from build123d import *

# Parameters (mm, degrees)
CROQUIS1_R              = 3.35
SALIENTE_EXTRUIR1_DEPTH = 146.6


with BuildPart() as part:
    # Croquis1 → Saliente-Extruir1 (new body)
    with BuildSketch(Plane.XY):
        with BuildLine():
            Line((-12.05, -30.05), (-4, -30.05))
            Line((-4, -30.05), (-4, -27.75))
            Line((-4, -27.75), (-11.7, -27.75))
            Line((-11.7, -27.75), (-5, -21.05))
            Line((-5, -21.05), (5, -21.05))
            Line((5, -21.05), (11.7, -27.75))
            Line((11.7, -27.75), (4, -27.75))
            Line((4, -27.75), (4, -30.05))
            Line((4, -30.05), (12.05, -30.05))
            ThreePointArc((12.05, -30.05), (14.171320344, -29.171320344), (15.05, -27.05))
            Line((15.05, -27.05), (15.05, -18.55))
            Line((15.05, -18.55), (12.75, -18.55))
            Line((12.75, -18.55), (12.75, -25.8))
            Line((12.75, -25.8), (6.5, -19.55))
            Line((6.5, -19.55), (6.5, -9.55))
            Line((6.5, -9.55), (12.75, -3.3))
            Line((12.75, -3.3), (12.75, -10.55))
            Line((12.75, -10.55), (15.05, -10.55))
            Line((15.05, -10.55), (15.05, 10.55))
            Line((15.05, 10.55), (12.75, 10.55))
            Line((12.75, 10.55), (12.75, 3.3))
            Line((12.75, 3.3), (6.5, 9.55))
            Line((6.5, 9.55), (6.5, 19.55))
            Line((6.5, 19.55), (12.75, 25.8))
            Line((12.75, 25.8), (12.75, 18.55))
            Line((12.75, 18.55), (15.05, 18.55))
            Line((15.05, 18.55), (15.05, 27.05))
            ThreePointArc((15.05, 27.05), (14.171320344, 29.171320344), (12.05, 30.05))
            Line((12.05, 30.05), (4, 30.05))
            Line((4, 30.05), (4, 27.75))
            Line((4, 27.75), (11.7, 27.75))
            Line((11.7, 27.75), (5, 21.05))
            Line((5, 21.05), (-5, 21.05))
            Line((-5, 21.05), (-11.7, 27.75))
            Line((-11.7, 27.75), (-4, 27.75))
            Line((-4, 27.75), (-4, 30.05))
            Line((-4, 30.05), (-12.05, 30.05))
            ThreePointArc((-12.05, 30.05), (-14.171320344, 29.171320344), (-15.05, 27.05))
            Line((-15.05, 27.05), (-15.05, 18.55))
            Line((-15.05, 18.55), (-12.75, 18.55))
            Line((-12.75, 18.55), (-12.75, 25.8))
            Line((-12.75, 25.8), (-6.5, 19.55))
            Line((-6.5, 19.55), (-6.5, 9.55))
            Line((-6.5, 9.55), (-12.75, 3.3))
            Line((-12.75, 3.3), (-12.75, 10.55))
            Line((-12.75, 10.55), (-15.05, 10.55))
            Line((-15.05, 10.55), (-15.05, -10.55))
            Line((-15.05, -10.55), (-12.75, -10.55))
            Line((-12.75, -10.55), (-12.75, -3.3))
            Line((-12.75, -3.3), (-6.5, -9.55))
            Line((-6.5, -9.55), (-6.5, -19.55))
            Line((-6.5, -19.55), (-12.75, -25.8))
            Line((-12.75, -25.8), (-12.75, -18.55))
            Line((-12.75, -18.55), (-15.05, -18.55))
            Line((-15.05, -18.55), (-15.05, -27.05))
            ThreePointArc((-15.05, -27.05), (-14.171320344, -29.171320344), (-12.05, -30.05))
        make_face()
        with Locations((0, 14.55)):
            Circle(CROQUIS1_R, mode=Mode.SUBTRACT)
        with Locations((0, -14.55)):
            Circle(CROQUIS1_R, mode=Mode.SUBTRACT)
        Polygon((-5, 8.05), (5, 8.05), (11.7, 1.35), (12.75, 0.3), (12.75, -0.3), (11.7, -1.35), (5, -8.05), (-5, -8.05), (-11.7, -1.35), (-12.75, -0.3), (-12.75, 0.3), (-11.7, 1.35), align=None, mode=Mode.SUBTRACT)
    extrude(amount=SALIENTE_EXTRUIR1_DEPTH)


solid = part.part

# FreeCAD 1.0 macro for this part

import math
import FreeCAD as App
import Part
import Sketcher
from FreeCAD import Vector
Q = App.Units.Quantity


def add_polygon(sketch, points):
    """Adds a closed chain of lines whose ends are joined by coincident constraints."""
    first, n = sketch.GeometryCount, len(points)
    for a, b in zip(points, points[1:] + points[:1]):
        sketch.addGeometry(Part.LineSegment(App.Vector(*a, 0), App.Vector(*b, 0)), False)
    for i in range(n):
        sketch.addConstraint(Sketcher.Constraint("Coincident", first + i, 2, first + (i + 1) % n, 1))

doc = App.newDocument("Part")
body = doc.addObject("PartDesign::Body", "Body")

# Sketch on XY plane
sketch1 = body.newObject("Sketcher::SketchObject", "Sketch")
sketch1.AttachmentSupport = (doc.getObject("XY_Plane"), [""])
sketch1.MapMode = "FlatFace"
sketch1.addGeometry(Part.LineSegment(Vector(-12.1, -30.1, 0), Vector(-4, -30.1, 0)), False)  # 0
sketch1.addGeometry(Part.LineSegment(Vector(-4, -30.1, 0), Vector(-4, -27.8, 0)), False)  # 1
sketch1.addGeometry(Part.LineSegment(Vector(-4, -27.8, 0), Vector(-11.7, -27.8, 0)), False)  # 2
sketch1.addGeometry(Part.LineSegment(Vector(-11.7, -27.8, 0), Vector(-5, -21.1, 0)), False)  # 3
sketch1.addGeometry(Part.LineSegment(Vector(-5, -21.1, 0), Vector(5, -21.1, 0)), False)  # 4
sketch1.addGeometry(Part.LineSegment(Vector(5, -21.1, 0), Vector(11.7, -27.8, 0)), False)  # 5
sketch1.addGeometry(Part.LineSegment(Vector(11.7, -27.8, 0), Vector(4, -27.8, 0)), False)  # 6
sketch1.addGeometry(Part.LineSegment(Vector(4, -27.8, 0), Vector(4, -30.1, 0)), False)  # 7
sketch1.addGeometry(Part.LineSegment(Vector(4, -30.1, 0), Vector(12.1, -30.1, 0)), False)  # 8
sketch1.addGeometry(Part.ArcOfCircle(Part.Circle(Vector(12.1, -27.1, 0), Vector(0, 0, 1), 3), math.radians(-90), math.radians(0)), False)  # 9
sketch1.addGeometry(Part.LineSegment(Vector(15.1, -27.1, 0), Vector(15.1, -18.6, 0)), False)  # 10
sketch1.addGeometry(Part.LineSegment(Vector(15.1, -18.6, 0), Vector(12.8, -18.6, 0)), False)  # 11
sketch1.addGeometry(Part.LineSegment(Vector(12.8, -18.6, 0), Vector(12.8, -25.8, 0)), False)  # 12
sketch1.addGeometry(Part.LineSegment(Vector(12.8, -25.8, 0), Vector(6.5, -19.6, 0)), False)  # 13
sketch1.addGeometry(Part.LineSegment(Vector(6.5, -19.6, 0), Vector(6.5, -9.6, 0)), False)  # 14
sketch1.addGeometry(Part.LineSegment(Vector(6.5, -9.6, 0), Vector(12.8, -3.3, 0)), False)  # 15
sketch1.addGeometry(Part.LineSegment(Vector(12.8, -3.3, 0), Vector(12.8, -10.6, 0)), False)  # 16
sketch1.addGeometry(Part.LineSegment(Vector(12.8, -10.6, 0), Vector(15.1, -10.6, 0)), False)  # 17
sketch1.addGeometry(Part.LineSegment(Vector(15.1, -10.6, 0), Vector(15.1, 10.6, 0)), False)  # 18
sketch1.addGeometry(Part.LineSegment(Vector(15.1, 10.6, 0), Vector(12.8, 10.6, 0)), False)  # 19
sketch1.addGeometry(Part.LineSegment(Vector(12.8, 10.6, 0), Vector(12.8, 3.3, 0)), False)  # 20
sketch1.addGeometry(Part.LineSegment(Vector(12.8, 3.3, 0), Vector(6.5, 9.6, 0)), False)  # 21
sketch1.addGeometry(Part.LineSegment(Vector(6.5, 9.6, 0), Vector(6.5, 19.6, 0)), False)  # 22
sketch1.addGeometry(Part.LineSegment(Vector(6.5, 19.6, 0), Vector(12.8, 25.8, 0)), False)  # 23
sketch1.addGeometry(Part.LineSegment(Vector(12.8, 25.8, 0), Vector(12.8, 18.6, 0)), False)  # 24
sketch1.addGeometry(Part.LineSegment(Vector(12.8, 18.6, 0), Vector(15.1, 18.6, 0)), False)  # 25
sketch1.addGeometry(Part.LineSegment(Vector(15.1, 18.6, 0), Vector(15.1, 27.1, 0)), False)  # 26
sketch1.addGeometry(Part.ArcOfCircle(Part.Circle(Vector(12.1, 27.1, 0), Vector(0, 0, 1), 3), math.radians(0), math.radians(90)), False)  # 27
sketch1.addGeometry(Part.LineSegment(Vector(12.1, 30.1, 0), Vector(4, 30.1, 0)), False)  # 28
sketch1.addGeometry(Part.LineSegment(Vector(4, 30.1, 0), Vector(4, 27.8, 0)), False)  # 29
sketch1.addGeometry(Part.LineSegment(Vector(4, 27.8, 0), Vector(11.7, 27.8, 0)), False)  # 30
sketch1.addGeometry(Part.LineSegment(Vector(11.7, 27.8, 0), Vector(5, 21.1, 0)), False)  # 31
sketch1.addGeometry(Part.LineSegment(Vector(5, 21.1, 0), Vector(-5, 21.1, 0)), False)  # 32
sketch1.addGeometry(Part.LineSegment(Vector(-5, 21.1, 0), Vector(-11.7, 27.8, 0)), False)  # 33
sketch1.addGeometry(Part.LineSegment(Vector(-11.7, 27.8, 0), Vector(-4, 27.8, 0)), False)  # 34
sketch1.addGeometry(Part.LineSegment(Vector(-4, 27.8, 0), Vector(-4, 30.1, 0)), False)  # 35
sketch1.addGeometry(Part.LineSegment(Vector(-4, 30.1, 0), Vector(-12.1, 30.1, 0)), False)  # 36
sketch1.addGeometry(Part.ArcOfCircle(Part.Circle(Vector(-12.1, 27.1, 0), Vector(0, 0, 1), 3), math.radians(90), math.radians(180)), False)  # 37
sketch1.addGeometry(Part.LineSegment(Vector(-15.1, 27.1, 0), Vector(-15.1, 18.6, 0)), False)  # 38
sketch1.addGeometry(Part.LineSegment(Vector(-15.1, 18.6, 0), Vector(-12.8, 18.6, 0)), False)  # 39
sketch1.addGeometry(Part.LineSegment(Vector(-12.8, 18.6, 0), Vector(-12.8, 25.8, 0)), False)  # 40
sketch1.addGeometry(Part.LineSegment(Vector(-12.8, 25.8, 0), Vector(-6.5, 19.6, 0)), False)  # 41
sketch1.addGeometry(Part.LineSegment(Vector(-6.5, 19.6, 0), Vector(-6.5, 9.6, 0)), False)  # 42
sketch1.addGeometry(Part.LineSegment(Vector(-6.5, 9.6, 0), Vector(-12.8, 3.3, 0)), False)  # 43
sketch1.addGeometry(Part.LineSegment(Vector(-12.8, 3.3, 0), Vector(-12.8, 10.6, 0)), False)  # 44
sketch1.addGeometry(Part.LineSegment(Vector(-12.8, 10.6, 0), Vector(-15.1, 10.6, 0)), False)  # 45
sketch1.addGeometry(Part.LineSegment(Vector(-15.1, 10.6, 0), Vector(-15.1, -10.6, 0)), False)  # 46
sketch1.addGeometry(Part.LineSegment(Vector(-15.1, -10.6, 0), Vector(-12.8, -10.6, 0)), False)  # 47
sketch1.addGeometry(Part.LineSegment(Vector(-12.8, -10.6, 0), Vector(-12.8, -3.3, 0)), False)  # 48
sketch1.addGeometry(Part.LineSegment(Vector(-12.8, -3.3, 0), Vector(-6.5, -9.6, 0)), False)  # 49
sketch1.addGeometry(Part.LineSegment(Vector(-6.5, -9.6, 0), Vector(-6.5, -19.6, 0)), False)  # 50
sketch1.addGeometry(Part.LineSegment(Vector(-6.5, -19.6, 0), Vector(-12.8, -25.8, 0)), False)  # 51
sketch1.addGeometry(Part.LineSegment(Vector(-12.8, -25.8, 0), Vector(-12.8, -18.6, 0)), False)  # 52
sketch1.addGeometry(Part.LineSegment(Vector(-12.8, -18.6, 0), Vector(-15.1, -18.6, 0)), False)  # 53
sketch1.addGeometry(Part.LineSegment(Vector(-15.1, -18.6, 0), Vector(-15.1, -27.1, 0)), False)  # 54
sketch1.addGeometry(Part.ArcOfCircle(Part.Circle(Vector(-12.1, -27.1, 0), Vector(0, 0, 1), 3), math.radians(180), math.radians(270)), False)  # 55
sketch1.addGeometry(Part.Circle(Vector(0, -14.6, 0), Vector(0, 0, 1), 3.4), False)  # 56
add_polygon(sketch1, [(-12.8, 0.3), (-5, 8.1), (5, 8.1), (12.8, 0.3), (12.8, -0.3), (5, -8.1), (-5, -8.1), (-12.8, -0.3)])  # lines 57-64
sketch1.addGeometry(Part.Circle(Vector(0, 14.6, 0), Vector(0, 0, 1), 3.4), False)  # 65
sketch1.addConstraint(Sketcher.Constraint("Coincident", 0, 2, 1, 1))
sketch1.addConstraint(Sketcher.Constraint("Coincident", 1, 2, 2, 1))
sketch1.addConstraint(Sketcher.Constraint("Coincident", 2, 2, 3, 1))
sketch1.addConstraint(Sketcher.Constraint("Coincident", 3, 2, 4, 1))
sketch1.addConstraint(Sketcher.Constraint("Coincident", 4, 2, 5, 1))
sketch1.addConstraint(Sketcher.Constraint("Coincident", 5, 2, 6, 1))
sketch1.addConstraint(Sketcher.Constraint("Coincident", 6, 2, 7, 1))
sketch1.addConstraint(Sketcher.Constraint("Coincident", 7, 2, 8, 1))
sketch1.addConstraint(Sketcher.Constraint("Tangent", 8, 2, 9, 1))
sketch1.addConstraint(Sketcher.Constraint("Tangent", 9, 2, 10, 1))
sketch1.addConstraint(Sketcher.Constraint("Coincident", 10, 2, 11, 1))
sketch1.addConstraint(Sketcher.Constraint("Coincident", 11, 2, 12, 1))
sketch1.addConstraint(Sketcher.Constraint("Coincident", 12, 2, 13, 1))
sketch1.addConstraint(Sketcher.Constraint("Coincident", 13, 2, 14, 1))
sketch1.addConstraint(Sketcher.Constraint("Coincident", 14, 2, 15, 1))
sketch1.addConstraint(Sketcher.Constraint("Coincident", 15, 2, 16, 1))
sketch1.addConstraint(Sketcher.Constraint("Coincident", 16, 2, 17, 1))
sketch1.addConstraint(Sketcher.Constraint("Coincident", 17, 2, 18, 1))
sketch1.addConstraint(Sketcher.Constraint("Coincident", 18, 2, 19, 1))
sketch1.addConstraint(Sketcher.Constraint("Coincident", 19, 2, 20, 1))
sketch1.addConstraint(Sketcher.Constraint("Coincident", 20, 2, 21, 1))
sketch1.addConstraint(Sketcher.Constraint("Coincident", 21, 2, 22, 1))
sketch1.addConstraint(Sketcher.Constraint("Coincident", 22, 2, 23, 1))
sketch1.addConstraint(Sketcher.Constraint("Coincident", 23, 2, 24, 1))
sketch1.addConstraint(Sketcher.Constraint("Coincident", 24, 2, 25, 1))
sketch1.addConstraint(Sketcher.Constraint("Coincident", 25, 2, 26, 1))
sketch1.addConstraint(Sketcher.Constraint("Tangent", 26, 2, 27, 1))
sketch1.addConstraint(Sketcher.Constraint("Tangent", 27, 2, 28, 1))
sketch1.addConstraint(Sketcher.Constraint("Coincident", 28, 2, 29, 1))
sketch1.addConstraint(Sketcher.Constraint("Coincident", 29, 2, 30, 1))
sketch1.addConstraint(Sketcher.Constraint("Coincident", 30, 2, 31, 1))
sketch1.addConstraint(Sketcher.Constraint("Coincident", 31, 2, 32, 1))
sketch1.addConstraint(Sketcher.Constraint("Coincident", 32, 2, 33, 1))
sketch1.addConstraint(Sketcher.Constraint("Coincident", 33, 2, 34, 1))
sketch1.addConstraint(Sketcher.Constraint("Coincident", 34, 2, 35, 1))
sketch1.addConstraint(Sketcher.Constraint("Coincident", 35, 2, 36, 1))
sketch1.addConstraint(Sketcher.Constraint("Tangent", 36, 2, 37, 1))
sketch1.addConstraint(Sketcher.Constraint("Tangent", 37, 2, 38, 1))
sketch1.addConstraint(Sketcher.Constraint("Coincident", 38, 2, 39, 1))
sketch1.addConstraint(Sketcher.Constraint("Coincident", 39, 2, 40, 1))
sketch1.addConstraint(Sketcher.Constraint("Coincident", 40, 2, 41, 1))
sketch1.addConstraint(Sketcher.Constraint("Coincident", 41, 2, 42, 1))
sketch1.addConstraint(Sketcher.Constraint("Coincident", 42, 2, 43, 1))
sketch1.addConstraint(Sketcher.Constraint("Coincident", 43, 2, 44, 1))
sketch1.addConstraint(Sketcher.Constraint("Coincident", 44, 2, 45, 1))
sketch1.addConstraint(Sketcher.Constraint("Coincident", 45, 2, 46, 1))
sketch1.addConstraint(Sketcher.Constraint("Coincident", 46, 2, 47, 1))
sketch1.addConstraint(Sketcher.Constraint("Coincident", 47, 2, 48, 1))
sketch1.addConstraint(Sketcher.Constraint("Coincident", 48, 2, 49, 1))
sketch1.addConstraint(Sketcher.Constraint("Coincident", 49, 2, 50, 1))
sketch1.addConstraint(Sketcher.Constraint("Coincident", 50, 2, 51, 1))
sketch1.addConstraint(Sketcher.Constraint("Coincident", 51, 2, 52, 1))
sketch1.addConstraint(Sketcher.Constraint("Coincident", 52, 2, 53, 1))
sketch1.addConstraint(Sketcher.Constraint("Coincident", 53, 2, 54, 1))
sketch1.addConstraint(Sketcher.Constraint("Tangent", 54, 2, 55, 1))
sketch1.addConstraint(Sketcher.Constraint("Tangent", 55, 2, 0, 1))
sketch1.addConstraint(Sketcher.Constraint("Horizontal", 0))
sketch1.addConstraint(Sketcher.Constraint("Vertical", 1))
sketch1.addConstraint(Sketcher.Constraint("Horizontal", 2))
sketch1.addConstraint(Sketcher.Constraint("Horizontal", 4))
sketch1.addConstraint(Sketcher.Constraint("Horizontal", 6))
sketch1.addConstraint(Sketcher.Constraint("Vertical", 7))
sketch1.addConstraint(Sketcher.Constraint("Horizontal", 8))
sketch1.addConstraint(Sketcher.Constraint("Vertical", 10))
sketch1.addConstraint(Sketcher.Constraint("Horizontal", 11))
sketch1.addConstraint(Sketcher.Constraint("Vertical", 12))
sketch1.addConstraint(Sketcher.Constraint("Vertical", 14))
sketch1.addConstraint(Sketcher.Constraint("Vertical", 16))
sketch1.addConstraint(Sketcher.Constraint("Horizontal", 17))
sketch1.addConstraint(Sketcher.Constraint("Vertical", 18))
sketch1.addConstraint(Sketcher.Constraint("Horizontal", 19))
sketch1.addConstraint(Sketcher.Constraint("Vertical", 20))
sketch1.addConstraint(Sketcher.Constraint("Vertical", 22))
sketch1.addConstraint(Sketcher.Constraint("Vertical", 24))
sketch1.addConstraint(Sketcher.Constraint("Horizontal", 25))
sketch1.addConstraint(Sketcher.Constraint("Vertical", 26))
sketch1.addConstraint(Sketcher.Constraint("Horizontal", 28))
sketch1.addConstraint(Sketcher.Constraint("Vertical", 29))
sketch1.addConstraint(Sketcher.Constraint("Horizontal", 30))
sketch1.addConstraint(Sketcher.Constraint("Horizontal", 32))
sketch1.addConstraint(Sketcher.Constraint("Horizontal", 34))
sketch1.addConstraint(Sketcher.Constraint("Vertical", 35))
sketch1.addConstraint(Sketcher.Constraint("Horizontal", 36))
sketch1.addConstraint(Sketcher.Constraint("Vertical", 38))
sketch1.addConstraint(Sketcher.Constraint("Horizontal", 39))
sketch1.addConstraint(Sketcher.Constraint("Vertical", 40))
sketch1.addConstraint(Sketcher.Constraint("Vertical", 42))
sketch1.addConstraint(Sketcher.Constraint("Vertical", 44))
sketch1.addConstraint(Sketcher.Constraint("Horizontal", 45))
sketch1.addConstraint(Sketcher.Constraint("Vertical", 46))
sketch1.addConstraint(Sketcher.Constraint("Horizontal", 47))
sketch1.addConstraint(Sketcher.Constraint("Vertical", 48))
sketch1.addConstraint(Sketcher.Constraint("Vertical", 50))
sketch1.addConstraint(Sketcher.Constraint("Vertical", 52))
sketch1.addConstraint(Sketcher.Constraint("Horizontal", 53))
sketch1.addConstraint(Sketcher.Constraint("Vertical", 54))
sketch1.addConstraint(Sketcher.Constraint("Horizontal", 58))
sketch1.addConstraint(Sketcher.Constraint("Vertical", 60))
sketch1.addConstraint(Sketcher.Constraint("Horizontal", 62))
sketch1.addConstraint(Sketcher.Constraint("Vertical", 64))
sketch1.addConstraint(Sketcher.Constraint("Equal", 9, 27))
sketch1.addConstraint(Sketcher.Constraint("Equal", 27, 37))
sketch1.addConstraint(Sketcher.Constraint("Equal", 37, 55))
sketch1.addConstraint(Sketcher.Constraint("Equal", 56, 65))
sketch1.addConstraint(Sketcher.Constraint("Symmetric", 9, 3, 37, 3, -1, 1))
sketch1.addConstraint(Sketcher.Constraint("Symmetric", 27, 3, 55, 3, -1, 1))
sketch1.addConstraint(Sketcher.Constraint("Symmetric", 56, 3, 65, 3, -1, 1))
sketch1.addConstraint(Sketcher.Constraint("Symmetric", 1, 2, 29, 2, -1, 1))
sketch1.addConstraint(Sketcher.Constraint("Symmetric", 3, 2, 31, 2, -1, 1))
sketch1.addConstraint(Sketcher.Constraint("Symmetric", 5, 2, 33, 2, -1, 1))
sketch1.addConstraint(Sketcher.Constraint("Symmetric", 11, 2, 39, 2, -1, 1))
sketch1.addConstraint(Sketcher.Constraint("Symmetric", 13, 2, 41, 2, -1, 1))
sketch1.addConstraint(Sketcher.Constraint("Symmetric", 15, 2, 43, 2, -1, 1))
sketch1.addConstraint(Sketcher.Constraint("Symmetric", 17, 2, 45, 2, -1, 1))
sketch1.addConstraint(Sketcher.Constraint("Symmetric", 19, 2, 47, 2, -1, 1))
sketch1.addConstraint(Sketcher.Constraint("Symmetric", 21, 2, 49, 2, -1, 1))
sketch1.addConstraint(Sketcher.Constraint("Symmetric", 23, 2, 51, 2, -1, 1))
sketch1.addConstraint(Sketcher.Constraint("Symmetric", 57, 2, 61, 2, -1, 1))
sketch1.addConstraint(Sketcher.Constraint("Symmetric", 59, 2, 63, 2, -1, 1))
sketch1.addConstraint(Sketcher.Constraint("Symmetric", 27, 3, 37, 3, -2))
sketch1.addConstraint(Sketcher.Constraint("Symmetric", 2, 2, 5, 2, -2))
sketch1.addConstraint(Sketcher.Constraint("Symmetric", 24, 2, 39, 2, -2))
sketch1.addConstraint(Sketcher.Constraint("Symmetric", 22, 2, 41, 2, -2))
sketch1.addConstraint(Sketcher.Constraint("Symmetric", 20, 2, 43, 2, -2))
sketch1.addConstraint(Sketcher.Constraint("PointOnObject", 56, 3, -2))
sketch1.addConstraint(Sketcher.Constraint("Perpendicular", 3, 5))
sketch1.addConstraint(Sketcher.Constraint("Parallel", 5, 13))
sketch1.addConstraint(Sketcher.Constraint("Perpendicular", 13, 15))
sketch1.addConstraint(Sketcher.Constraint("Perpendicular", 15, 21))
sketch1.addConstraint(Sketcher.Constraint("Perpendicular", 21, 23))
sketch1.addConstraint(Sketcher.Constraint("Parallel", 23, 31))
sketch1.addConstraint(Sketcher.Constraint("Perpendicular", 31, 33))
sketch1.addConstraint(Sketcher.Constraint("Parallel", 33, 41))
sketch1.addConstraint(Sketcher.Constraint("Perpendicular", 41, 43))
sketch1.addConstraint(Sketcher.Constraint("Perpendicular", 43, 49))
sketch1.addConstraint(Sketcher.Constraint("Perpendicular", 49, 51))
sketch1.addConstraint(Sketcher.Constraint("Parallel", 51, 57))
sketch1.addConstraint(Sketcher.Constraint("Perpendicular", 57, 59))
sketch1.addConstraint(Sketcher.Constraint("Perpendicular", 59, 61))
sketch1.addConstraint(Sketcher.Constraint("Perpendicular", 61, 63))
sketch1.addConstraint(Sketcher.Constraint("Horizontal", 23, 2, 40, 2))
sketch1.addConstraint(Sketcher.Constraint("Horizontal", 19, 2, 44, 2))
sketch1.addConstraint(Sketcher.Constraint("Horizontal", 11, 2, 52, 2))
sketch1.addConstraint(Sketcher.Constraint("Horizontal", 60, 2, 63, 2))
sketch1.addConstraint(Sketcher.Constraint("Vertical", 12, 2, 15, 2))
sketch1.addConstraint(Sketcher.Constraint("Vertical", 10, 2, 17, 2))
sketch1.addConstraint(Sketcher.Constraint("Vertical", 7, 2, 28, 2))
sketch1.addConstraint(Sketcher.Constraint("Vertical", 1, 2, 34, 2))
sketch1.addConstraint(Sketcher.Constraint("Vertical", 32, 2, 57, 2))
sketch1.addConstraint(Sketcher.Constraint("Vertical", 24, 2, 59, 2))
sketch1.addConstraint(Sketcher.Constraint("Equal", 53, 1))
sketch1.addConstraint(Sketcher.Constraint("Equal", 62, 14))
sketch1.addConstraint(Sketcher.Constraint("Equal", 12, 16))
sketch1.addConstraint(Sketcher.Constraint("Radius", 9, Q("3 mm")))
sketch1.addConstraint(Sketcher.Constraint("Diameter", 56, Q("6.7 mm")))
sketch1.addConstraint(Sketcher.Constraint("DistanceX", 4, 1, 4, 2, Q("10 mm")))
sketch1.addConstraint(Sketcher.Constraint("DistanceX", 2, 2, 2, 1, Q("7.7 mm")))
sketch1.addConstraint(Sketcher.Constraint("DistanceX", 11, 2, 11, 1, Q("2.3 mm")))
sketch1.addConstraint(Sketcher.Constraint("DistanceY", 10, 1, 10, 2, Q("8.5 mm")))
sketch1.addConstraint(Sketcher.Constraint("DistanceY", 18, 1, 18, 2, Q("21.1 mm")))
sketch1.addConstraint(Sketcher.Constraint("DistanceY", 60, 2, 60, 1, Q("0.6 mm")))
sketch1.addConstraint(Sketcher.Constraint("DistanceX", 0, 2, -1, 1, Q("4 mm")))
sketch1.addConstraint(Sketcher.Constraint("DistanceX", 0, 1, 0, 2, Q("8.05 mm")))
sketch1.addConstraint(Sketcher.Constraint("DistanceY", 12, 2, 12, 1, Q("7.25 mm")))
sketch1.addConstraint(Sketcher.Constraint("DistanceY", 12, 2, -1, 1, Q("25.8 mm")))
sketch1.addConstraint(Sketcher.Constraint("DistanceY", 56, 3, -1, 1, Q("14.55 mm")))
pad1 = body.newObject("PartDesign::Pad", "Pad")
pad1.Profile = sketch1
pad1.Length = 146.6

doc.recompute()
